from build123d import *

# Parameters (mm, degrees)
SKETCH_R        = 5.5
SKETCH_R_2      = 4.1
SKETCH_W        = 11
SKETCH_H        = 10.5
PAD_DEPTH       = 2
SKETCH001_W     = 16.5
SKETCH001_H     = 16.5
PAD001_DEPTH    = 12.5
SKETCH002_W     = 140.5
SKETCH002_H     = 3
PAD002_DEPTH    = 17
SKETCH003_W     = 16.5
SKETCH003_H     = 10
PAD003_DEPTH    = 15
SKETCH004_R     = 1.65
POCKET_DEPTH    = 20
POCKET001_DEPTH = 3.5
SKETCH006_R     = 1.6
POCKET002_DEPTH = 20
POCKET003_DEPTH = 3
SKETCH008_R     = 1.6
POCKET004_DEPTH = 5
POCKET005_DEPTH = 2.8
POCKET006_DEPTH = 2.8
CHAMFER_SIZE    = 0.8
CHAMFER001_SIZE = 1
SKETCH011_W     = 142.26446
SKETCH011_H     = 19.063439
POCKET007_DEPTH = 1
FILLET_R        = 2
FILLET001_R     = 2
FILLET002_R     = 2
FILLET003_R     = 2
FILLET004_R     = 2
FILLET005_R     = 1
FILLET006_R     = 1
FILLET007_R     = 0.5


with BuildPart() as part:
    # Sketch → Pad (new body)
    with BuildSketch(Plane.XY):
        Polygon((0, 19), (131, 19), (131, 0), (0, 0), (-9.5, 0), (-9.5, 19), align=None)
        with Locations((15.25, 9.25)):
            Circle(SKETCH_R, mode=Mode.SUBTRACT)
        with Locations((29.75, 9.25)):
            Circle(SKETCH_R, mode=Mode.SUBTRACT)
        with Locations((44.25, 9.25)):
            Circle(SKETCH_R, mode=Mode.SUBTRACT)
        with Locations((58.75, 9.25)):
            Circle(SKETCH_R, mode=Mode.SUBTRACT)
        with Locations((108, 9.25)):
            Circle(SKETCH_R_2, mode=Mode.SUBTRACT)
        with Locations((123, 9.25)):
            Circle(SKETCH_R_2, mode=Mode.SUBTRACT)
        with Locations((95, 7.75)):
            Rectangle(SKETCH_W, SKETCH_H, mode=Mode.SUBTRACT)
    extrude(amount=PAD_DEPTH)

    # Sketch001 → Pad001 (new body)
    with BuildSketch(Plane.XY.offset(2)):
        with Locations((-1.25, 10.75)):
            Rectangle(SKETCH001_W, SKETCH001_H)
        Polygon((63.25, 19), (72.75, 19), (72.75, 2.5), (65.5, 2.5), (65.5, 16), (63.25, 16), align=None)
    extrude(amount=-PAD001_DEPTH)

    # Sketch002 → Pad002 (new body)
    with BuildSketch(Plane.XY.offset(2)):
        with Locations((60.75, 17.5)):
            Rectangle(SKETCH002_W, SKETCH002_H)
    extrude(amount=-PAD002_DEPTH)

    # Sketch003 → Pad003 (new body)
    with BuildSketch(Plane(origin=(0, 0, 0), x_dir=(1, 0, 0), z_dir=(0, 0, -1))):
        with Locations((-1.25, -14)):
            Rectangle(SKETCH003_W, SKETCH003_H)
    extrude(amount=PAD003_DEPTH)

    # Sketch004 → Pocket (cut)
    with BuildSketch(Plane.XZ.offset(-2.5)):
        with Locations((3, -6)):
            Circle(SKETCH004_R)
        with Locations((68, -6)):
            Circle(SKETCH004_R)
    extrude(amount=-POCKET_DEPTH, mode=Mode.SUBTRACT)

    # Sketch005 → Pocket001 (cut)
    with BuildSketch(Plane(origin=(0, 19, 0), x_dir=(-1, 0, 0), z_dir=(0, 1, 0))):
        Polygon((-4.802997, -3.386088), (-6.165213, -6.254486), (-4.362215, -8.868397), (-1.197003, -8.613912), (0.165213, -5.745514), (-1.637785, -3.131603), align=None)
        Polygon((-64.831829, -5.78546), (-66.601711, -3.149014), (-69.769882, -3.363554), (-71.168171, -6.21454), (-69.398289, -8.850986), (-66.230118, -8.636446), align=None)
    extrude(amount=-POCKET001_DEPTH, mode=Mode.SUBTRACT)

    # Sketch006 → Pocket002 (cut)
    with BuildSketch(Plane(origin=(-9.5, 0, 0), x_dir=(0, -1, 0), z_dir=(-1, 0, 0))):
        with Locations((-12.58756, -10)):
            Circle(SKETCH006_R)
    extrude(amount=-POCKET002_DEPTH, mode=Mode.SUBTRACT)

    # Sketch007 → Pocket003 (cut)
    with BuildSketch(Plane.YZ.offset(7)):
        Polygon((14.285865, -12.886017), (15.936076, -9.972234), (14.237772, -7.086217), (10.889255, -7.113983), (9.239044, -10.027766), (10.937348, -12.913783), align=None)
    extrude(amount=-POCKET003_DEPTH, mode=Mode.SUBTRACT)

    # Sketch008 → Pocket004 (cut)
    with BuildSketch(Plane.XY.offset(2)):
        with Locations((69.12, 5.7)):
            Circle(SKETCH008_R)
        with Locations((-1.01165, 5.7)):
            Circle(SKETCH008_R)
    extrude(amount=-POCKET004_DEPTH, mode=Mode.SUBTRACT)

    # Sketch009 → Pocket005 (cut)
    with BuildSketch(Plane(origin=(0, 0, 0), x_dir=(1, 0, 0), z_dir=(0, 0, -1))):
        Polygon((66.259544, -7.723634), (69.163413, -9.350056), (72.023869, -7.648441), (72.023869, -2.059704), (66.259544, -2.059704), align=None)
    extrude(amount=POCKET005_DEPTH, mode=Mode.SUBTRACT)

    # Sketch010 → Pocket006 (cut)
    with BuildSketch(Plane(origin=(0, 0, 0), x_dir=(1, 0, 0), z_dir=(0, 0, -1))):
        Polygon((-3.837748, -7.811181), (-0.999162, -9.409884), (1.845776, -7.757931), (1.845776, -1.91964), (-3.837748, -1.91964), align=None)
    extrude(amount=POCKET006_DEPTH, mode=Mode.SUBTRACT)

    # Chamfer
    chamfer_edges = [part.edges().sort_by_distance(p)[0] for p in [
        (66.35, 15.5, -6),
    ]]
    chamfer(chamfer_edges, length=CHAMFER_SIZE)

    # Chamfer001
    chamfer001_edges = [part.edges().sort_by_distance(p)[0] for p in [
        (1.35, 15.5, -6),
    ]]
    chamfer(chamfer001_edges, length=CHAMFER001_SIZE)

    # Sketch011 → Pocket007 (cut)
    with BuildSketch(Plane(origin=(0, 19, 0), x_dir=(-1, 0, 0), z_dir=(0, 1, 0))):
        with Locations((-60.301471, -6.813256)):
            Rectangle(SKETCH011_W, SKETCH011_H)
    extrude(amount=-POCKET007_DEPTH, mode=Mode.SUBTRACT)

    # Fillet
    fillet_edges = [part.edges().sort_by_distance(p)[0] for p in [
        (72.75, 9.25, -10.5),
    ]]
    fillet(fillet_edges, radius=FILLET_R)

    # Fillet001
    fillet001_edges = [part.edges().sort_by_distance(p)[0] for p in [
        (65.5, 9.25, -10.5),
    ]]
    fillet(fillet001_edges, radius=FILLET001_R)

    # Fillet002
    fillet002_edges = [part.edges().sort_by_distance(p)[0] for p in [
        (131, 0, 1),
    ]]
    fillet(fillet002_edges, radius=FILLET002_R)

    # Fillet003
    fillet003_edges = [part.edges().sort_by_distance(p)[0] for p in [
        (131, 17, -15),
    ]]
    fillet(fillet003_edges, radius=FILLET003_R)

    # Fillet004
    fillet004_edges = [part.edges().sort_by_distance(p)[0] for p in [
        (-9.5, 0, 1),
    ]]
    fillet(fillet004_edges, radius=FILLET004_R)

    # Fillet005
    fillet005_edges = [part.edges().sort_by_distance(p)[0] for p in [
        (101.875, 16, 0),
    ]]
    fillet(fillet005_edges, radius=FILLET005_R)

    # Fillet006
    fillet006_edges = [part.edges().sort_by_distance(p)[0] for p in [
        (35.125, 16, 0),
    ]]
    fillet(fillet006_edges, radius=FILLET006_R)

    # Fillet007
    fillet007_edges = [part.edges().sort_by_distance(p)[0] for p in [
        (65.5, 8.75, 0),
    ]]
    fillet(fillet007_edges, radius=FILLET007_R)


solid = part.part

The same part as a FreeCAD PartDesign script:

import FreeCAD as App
import Part
import Sketcher
from FreeCAD import Vector


def edges_at(feature, points):
    """Names of the edges that pass closest to the given points."""
    edges = feature.Shape.Edges
    near = lambda p: min(range(len(edges)), key=lambda i: edges[i].distToShape(Part.Vertex(*p))[0])
    return sorted({f"Edge{near(p) + 1}" for p in points})


def add_polygon(sketch, points):
    """Adds a closed chain of lines whose ends are joined by coincident constraints."""
    first, n = sketch.GeometryCount, len(points)
    for a, b in zip(points, points[1:] + points[:1]):
        sketch.addGeometry(Part.LineSegment(App.Vector(*a, 0), App.Vector(*b, 0)), False)
    for i in range(n):
        sketch.addConstraint(Sketcher.Constraint("Coincident", first + i, 2, first + (i + 1) % n, 1))

doc = App.newDocument("Part")
body = doc.addObject("PartDesign::Body", "Body")

# Sketch on XY plane
sketch1 = body.newObject("Sketcher::SketchObject", "Sketch")
sketch1.AttachmentSupport = (doc.getObject("XY_Plane"), [""])
sketch1.MapMode = "FlatFace"
add_polygon(sketch1, [(131, 19), (-9.5, 19), (-9.5, 0), (131, 0)])  # lines 0-3
add_polygon(sketch1, [(89.5, 2.5), (89.5, 13), (100.5, 13), (100.5, 2.5)])  # lines 4-7
sketch1.addGeometry(Part.Circle(Vector(123, 9.2, 0), Vector(0, 0, 1), 4.1), False)  # 8
sketch1.addGeometry(Part.Circle(Vector(108, 9.2, 0), Vector(0, 0, 1), 4.1), False)  # 9
sketch1.addGeometry(Part.Circle(Vector(58.8, 9.2, 0), Vector(0, 0, 1), 5.5), False)  # 10
sketch1.addGeometry(Part.Circle(Vector(44.2, 9.2, 0), Vector(0, 0, 1), 5.5), False)  # 11
sketch1.addGeometry(Part.Circle(Vector(29.8, 9.2, 0), Vector(0, 0, 1), 5.5), False)  # 12
sketch1.addGeometry(Part.Circle(Vector(15.2, 9.2, 0), Vector(0, 0, 1), 5.5), False)  # 13
sketch1.addConstraint([
    Sketcher.Constraint("Horizontal", 0),
    Sketcher.Constraint("Vertical", 1),
    Sketcher.Constraint("Horizontal", 2),
    Sketcher.Constraint("Vertical", 3),
    Sketcher.Constraint("Vertical", 4),
    Sketcher.Constraint("Horizontal", 5),
    Sketcher.Constraint("Vertical", 6),
    Sketcher.Constraint("Horizontal", 7),
    Sketcher.Constraint("Equal", 8, 9),
    Sketcher.Constraint("Equal", 10, 11),
    Sketcher.Constraint("Equal", 11, 12),
    Sketcher.Constraint("Equal", 12, 13),
    Sketcher.Constraint("PointOnObject", 1, 2, -1),
    Sketcher.Constraint("Horizontal", 8, 3, 9, 3),
    Sketcher.Constraint("Horizontal", 9, 3, 10, 3),
    Sketcher.Constraint("Horizontal", 10, 3, 11, 3),
    Sketcher.Constraint("Horizontal", 11, 3, 12, 3),
    Sketcher.Constraint("Horizontal", 12, 3, 13, 3),
    Sketcher.Constraint("Diameter", 10, 11.0),
    Sketcher.Constraint("Diameter", 8, 8.2),
    Sketcher.Constraint("DistanceX", 5, 1, 5, 2, 11.0),
    Sketcher.Constraint("DistanceY", 1, 2, 1, 1, 19.0),
    Sketcher.Constraint("DistanceX", 0, 2, 0, 1, 140.5),
    Sketcher.Constraint("DistanceY", 4, 1, 4, 2, 10.5),
    Sketcher.Constraint("DistanceX", -1, 1, 8, 3, 123.0),
    Sketcher.Constraint("DistanceX", -1, 1, 9, 3, 108.0),
    Sketcher.Constraint("DistanceX", -1, 1, 2, 2, 131.0),
    Sketcher.Constraint("DistanceY", -1, 1, 4, 2, 13.0),
    Sketcher.Constraint("DistanceX", 12, 3, 10, 3, 29.0),
    Sketcher.Constraint("DistanceX", 13, 3, 11, 3, 29.0),
    Sketcher.Constraint("DistanceX", -1, 1, 4, 2, 89.5),
    Sketcher.Constraint("DistanceX", 11, 3, 10, 3, 14.5),
    Sketcher.Constraint("DistanceY", -1, 1, 8, 3, 9.25),
    Sketcher.Constraint("DistanceX", -1, 1, 10, 3, 58.75),
])
pad1 = body.newObject("PartDesign::Pad", "Pad")
pad1.Profile = sketch1
pad1.Length = 2

# Sketch on XY plane
sketch2 = body.newObject("Sketcher::SketchObject", "Sketch001")
sketch2.AttachmentSupport = (doc.getObject("XY_Plane"), [""])
sketch2.MapMode = "FlatFace"
sketch2.AttachmentOffset = App.Placement(Vector(0, 0, 2), App.Rotation())
add_polygon(sketch2, [(-9.5, 19), (-9.5, 2.5), (7, 2.5), (7, 19)])  # lines 0-3
add_polygon(sketch2, [(72.8, 19), (63.2, 19), (63.2, 16), (65.5, 16), (65.5, 2.5), (72.8, 2.5)])  # lines 4-9
sketch2.addConstraint([
    Sketcher.Constraint("Vertical", 0),
    Sketcher.Constraint("Horizontal", 1),
    Sketcher.Constraint("Vertical", 2),
    Sketcher.Constraint("Horizontal", 3),
    Sketcher.Constraint("Horizontal", 4),
    Sketcher.Constraint("Vertical", 5),
    Sketcher.Constraint("Horizontal", 6),
    Sketcher.Constraint("Vertical", 7),
    Sketcher.Constraint("Horizontal", 8),
    Sketcher.Constraint("Vertical", 9),
    Sketcher.Constraint("Horizontal", 3, 2, 4, 2),
    Sketcher.Constraint("Horizontal", 1, 2, 7, 2),
    Sketcher.Constraint("Equal", 3, 0),
    Sketcher.Constraint("DistanceY", 5, 2, 5, 1, 3.0),
    Sketcher.Constraint("DistanceX", 1, 1, 1, 2, 16.5),
    Sketcher.Constraint("DistanceX", 4, 2, 4, 1, 9.5),
    Sketcher.Constraint("DistanceX", -1, 1, 1, 2, 7.0),
    Sketcher.Constraint("DistanceY", -1, 1, 2, 2, 19.0),
    Sketcher.Constraint("DistanceX", 3, 2, 6, 2, 75.0),
    Sketcher.Constraint("DistanceX", 6, 1, 6, 2, 2.25),
])
pad2 = body.newObject("PartDesign::Pad", "Pad001")
pad2.Profile = sketch2
pad2.Length = 12.5
pad2.Reversed = True

# Sketch on XY plane
sketch3 = body.newObject("Sketcher::SketchObject", "Sketch002")
sketch3.AttachmentSupport = (doc.getObject("XY_Plane"), [""])
sketch3.MapMode = "FlatFace"
sketch3.AttachmentOffset = App.Placement(Vector(0, 0, 2), App.Rotation())
add_polygon(sketch3, [(-9.5, 19), (-9.5, 16), (131, 16), (131, 19)])  # lines 0-3
sketch3.addConstraint([
    Sketcher.Constraint("Vertical", 0),
    Sketcher.Constraint("Horizontal", 1),
    Sketcher.Constraint("Vertical", 2),
    Sketcher.Constraint("Horizontal", 3),
    Sketcher.Constraint("DistanceY", 0, 2, 0, 1, 3.0),
    Sketcher.Constraint("DistanceX", 1, 1, 1, 2, 140.5),
    Sketcher.Constraint("DistanceY", -1, 1, 0, 2, 16.0),
    Sketcher.Constraint("DistanceX", -1, 1, 1, 2, 131.0),
])
pad3 = body.newObject("PartDesign::Pad", "Pad002")
pad3.Profile = sketch3
pad3.Length = 17
pad3.Reversed = True

# Sketch on XY plane
sketch4 = body.newObject("Sketcher::SketchObject", "Sketch003")
sketch4.AttachmentSupport = (doc.getObject("XY_Plane"), [""])
sketch4.MapMode = "FlatFace"
add_polygon(sketch4, [(-10, 9), (-10, 19), (7, 19), (7, 9)])  # lines 0-3
sketch4.addConstraint([
    Sketcher.Constraint("Vertical", 0),
    Sketcher.Constraint("Horizontal", 1),
    Sketcher.Constraint("Vertical", 2),
    Sketcher.Constraint("Horizontal", 3),
    Sketcher.Constraint("DistanceY", 0, 1, 0, 2, 10.0),
    Sketcher.Constraint("DistanceX", 1, 1, 1, 2, 16.5),
    Sketcher.Constraint("DistanceY", -1, 1, 0, 2, 19.0),
    Sketcher.Constraint("DistanceX", -1, 1, 1, 2, 7.0),
])
pad4 = body.newObject("PartDesign::Pad", "Pad003")
pad4.Profile = sketch4
pad4.Length = 15
pad4.Reversed = True

# Sketch on XZ plane
sketch5 = body.newObject("Sketcher::SketchObject", "Sketch004")
sketch5.AttachmentSupport = (doc.getObject("XZ_Plane"), [""])
sketch5.MapMode = "FlatFace"
sketch5.AttachmentOffset = App.Placement(Vector(0, 0, -2.5), App.Rotation())
sketch5.addGeometry([
    Part.Circle(Vector(3, -6, 0), Vector(0, 0, 1), 1.6),
    Part.Circle(Vector(68, -6, 0), Vector(0, 0, 1), 1.6),
], False)
sketch5.addConstraint([
    Sketcher.Constraint("Equal", 0, 1),
    Sketcher.Constraint("Horizontal", 0, 3, 1, 3),
    Sketcher.Constraint("Diameter", 0, 3.3),
    Sketcher.Constraint("DistanceX", -1, 1, 0, 3, 3.0),
    Sketcher.Constraint("DistanceY", 0, 3, -1, 1, 6.0),
    Sketcher.Constraint("DistanceX", -1, 1, 1, 3, 68.0),
])
pocket1 = body.newObject("PartDesign::Pocket", "Pocket")
pocket1.Profile = sketch5
pocket1.Length = 20

# Sketch on XZ plane
sketch6 = body.newObject("Sketcher::SketchObject", "Sketch005")
sketch6.AttachmentSupport = (doc.getObject("XZ_Plane"), [""])
sketch6.MapMode = "FlatFace"
sketch6.AttachmentOffset = App.Placement(Vector(0, 0, -19), App.Rotation())
add_polygon(sketch6, [(4.8, -3.4), (6.2, -6.3), (4.4, -8.9), (1.2, -8.6), (-0.2, -5.7), (1.6, -3.1)])  # lines 0-5
add_polygon(sketch6, [(64.8, -5.8), (66.6, -3.1), (69.8, -3.4), (71.2, -6.2), (69.4, -8.9), (66.2, -8.6)])  # lines 6-11
sketch6.addConstraint([
    Sketcher.Constraint("Parallel", 0, 3),
    Sketcher.Constraint("Parallel", 1, 4),
    Sketcher.Constraint("Parallel", 2, 5),
    Sketcher.Constraint("Parallel", 6, 9),
    Sketcher.Constraint("Parallel", 7, 10),
    Sketcher.Constraint("Parallel", 8, 11),
    Sketcher.Constraint("Equal", 0, 1),
    Sketcher.Constraint("Equal", 1, 2),
    Sketcher.Constraint("Equal", 2, 3),
    Sketcher.Constraint("Equal", 5, 6),
    Sketcher.Constraint("Equal", 6, 7),
    Sketcher.Constraint("Equal", 7, 8),
    Sketcher.Constraint("Equal", 8, 9),
    Sketcher.Constraint("DistanceX", 3, 2, 4, 2, 1.802998),
    Sketcher.Constraint("DistanceY", 0, 2, 5, 2, 2.868398),
    Sketcher.Constraint("DistanceY", 9, 2, 0, 2, 2.5965),
    Sketcher.Constraint("DistanceY", 2, 2, -1, 1, 8.613912),
    Sketcher.Constraint("DistanceY", 5, 2, -1, 1, 3.386088),
    Sketcher.Constraint("DistanceX", -1, 1, 6, 2, 66.601711),
    Sketcher.Constraint("DistanceX", -1, 1, 7, 2, 69.769882),
    Sketcher.Constraint("DistanceX", -1, 1, 8, 2, 71.168171),
    Sketcher.Constraint("DistanceY", 8, 2, -1, 1, 6.21454),
    Sketcher.Constraint("DistanceX", -1, 1, 9, 2, 69.398289),
    Sketcher.Constraint("DistanceX", 2, 2, 6, 2, 65.404708),
])
pocket2 = body.newObject("PartDesign::Pocket", "Pocket001")
pocket2.Profile = sketch6
pocket2.Length = 3.5
pocket2.Reversed = True

# Sketch on YZ plane
sketch7 = body.newObject("Sketcher::SketchObject", "Sketch006")
sketch7.AttachmentSupport = (doc.getObject("YZ_Plane"), [""])
sketch7.MapMode = "FlatFace"
sketch7.AttachmentOffset = App.Placement(Vector(0, 0, -9.5), App.Rotation())
sketch7.addGeometry(Part.Circle(Vector(12.6, -10, 0), Vector(0, 0, 1), 1.6), False)
sketch7.addConstraint([
    Sketcher.Constraint("Diameter", 0, 3.2),
    Sketcher.Constraint("DistanceY", 0, 3, -1, 1, 10.0),
    Sketcher.Constraint("DistanceX", -1, 1, 0, 3, 12.58756),
])
pocket3 = body.newObject("PartDesign::Pocket", "Pocket002")
pocket3.Profile = sketch7
pocket3.Length = 20
pocket3.Reversed = True

# Sketch on YZ plane
sketch8 = body.newObject("Sketcher::SketchObject", "Sketch007")
sketch8.AttachmentSupport = (doc.getObject("YZ_Plane"), [""])
sketch8.MapMode = "FlatFace"
sketch8.AttachmentOffset = App.Placement(Vector(0, 0, 7), App.Rotation())
add_polygon(sketch8, [(14.3, -12.9), (15.9, -10), (14.2, -7.1), (10.9, -7.1), (9.2, -10), (10.9, -12.9)])  # lines 0-5
sketch8.addConstraint([
    Sketcher.Constraint("Parallel", 0, 3),
    Sketcher.Constraint("Parallel", 1, 4),
    Sketcher.Constraint("Parallel", 2, 5),
    Sketcher.Constraint("Equal", 0, 1),
    Sketcher.Constraint("Equal", 1, 2),
    Sketcher.Constraint("Equal", 2, 3),
    Sketcher.Constraint("DistanceY", 4, 2, 2, 2, 5.7998),
    Sketcher.Constraint("Distance", 0, 3.348631),
    Sketcher.Constraint("DistanceX", 2, 2, 0, 2, 5.046821),
    Sketcher.Constraint("DistanceY", 0, 2, 2, 2, 2.858251),
    Sketcher.Constraint("DistanceX", -1, 1, 0, 2, 15.936076),
    Sketcher.Constraint("DistanceY", 0, 2, -1, 1, 9.972234),
])
pocket4 = body.newObject("PartDesign::Pocket", "Pocket003")
pocket4.Profile = sketch8
pocket4.Length = 3

# Sketch on XY plane
sketch9 = body.newObject("Sketcher::SketchObject", "Sketch008")
sketch9.AttachmentSupport = (doc.getObject("XY_Plane"), [""])
sketch9.MapMode = "FlatFace"
sketch9.AttachmentOffset = App.Placement(Vector(0, 0, 2), App.Rotation())
sketch9.addGeometry([
    Part.Circle(Vector(69.1, 5.7, 0), Vector(0, 0, 1), 1.6),
    Part.Circle(Vector(-1, 5.7, 0), Vector(0, 0, 1), 1.6),
], False)
sketch9.addConstraint([
    Sketcher.Constraint("Equal", 0, 1),
    Sketcher.Constraint("Horizontal", 0, 3, 1, 3),
    Sketcher.Constraint("Diameter", 0, 3.2),
    Sketcher.Constraint("DistanceY", -1, 1, 0, 3, 5.7),
    Sketcher.Constraint("DistanceX", -1, 1, 0, 3, 69.12),
    Sketcher.Constraint("DistanceX", 1, 3, -1, 1, 1.01165),
])
pocket5 = body.newObject("PartDesign::Pocket", "Pocket004")
pocket5.Profile = sketch9
pocket5.Length = 5

# Sketch on XY plane
sketch10 = body.newObject("Sketcher::SketchObject", "Sketch009")
sketch10.AttachmentSupport = (doc.getObject("XY_Plane"), [""])
sketch10.MapMode = "FlatFace"
add_polygon(sketch10, [(66.3, 7.7), (69.2, 9.4), (72, 7.6), (72, 2.1), (66.3, 2.1)])  # lines 0-4
sketch10.addConstraint([
    Sketcher.Constraint("Vertical", 2),
    Sketcher.Constraint("Horizontal", 3),
    Sketcher.Constraint("Vertical", 4),
    Sketcher.Constraint("Equal", 0, 1),
    Sketcher.Constraint("DistanceY", 4, 1, 4, 2, 5.66393),
    Sketcher.Constraint("Distance", 0, 3.328318),
    Sketcher.Constraint("DistanceX", 3, 2, 3, 1, 5.764325),
    Sketcher.Constraint("DistanceY", 2, 2, 2, 1, 5.588737),
    Sketcher.Constraint("DistanceX", -1, 1, 1, 2, 72.023869),
    Sketcher.Constraint("DistanceY", -1, 1, 1, 2, 7.648441),
])
pocket6 = body.newObject("PartDesign::Pocket", "Pocket005")
pocket6.Profile = sketch10
pocket6.Length = 2.8

# Sketch on XY plane
sketch11 = body.newObject("Sketcher::SketchObject", "Sketch010")
sketch11.AttachmentSupport = (doc.getObject("XY_Plane"), [""])
sketch11.MapMode = "FlatFace"
add_polygon(sketch11, [(-3.8, 7.8), (-1, 9.4), (1.8, 7.8), (1.8, 1.9), (-3.8, 1.9)])  # lines 0-4
sketch11.addConstraint([
    Sketcher.Constraint("Vertical", 2),
    Sketcher.Constraint("Horizontal", 3),
    Sketcher.Constraint("Vertical", 4),
    Sketcher.Constraint("DistanceY", 2, 2, 2, 1, 5.838291),
    Sketcher.Constraint("DistanceY", 4, 1, 4, 2, 5.891541),
    Sketcher.Constraint("DistanceX", 3, 2, 3, 1, 5.683524),
    Sketcher.Constraint("DistanceX", 0, 2, -1, 1, 0.999162),
    Sketcher.Constraint("DistanceY", -1, 1, 1, 2, 7.757931),
    Sketcher.Constraint("DistanceX", 0, 2, 1, 2, 2.844938),
    Sketcher.Constraint("Distance", 0, 3.257825),
])
pocket7 = body.newObject("PartDesign::Pocket", "Pocket006")
pocket7.Profile = sketch11
pocket7.Length = 2.8
doc.recompute()

chamfer = body.newObject("PartDesign::Chamfer", "Chamfer")
chamfer.Base = (pocket7, edges_at(pocket7, [(66.35, 15.5, -6)]))
chamfer.Size = 0.8
doc.recompute()

chamfer2 = body.newObject("PartDesign::Chamfer", "Chamfer001")
chamfer2.Base = (chamfer, edges_at(chamfer, [(1.35, 15.5, -6)]))
chamfer2.Size = 1

# Sketch on XZ plane
sketch12 = body.newObject("Sketcher::SketchObject", "Sketch011")
sketch12.AttachmentSupport = (doc.getObject("XZ_Plane"), [""])
sketch12.MapMode = "FlatFace"
sketch12.AttachmentOffset = App.Placement(Vector(0, 0, -19), App.Rotation())
add_polygon(sketch12, [(131, 3), (131, -16), (-11, -16), (-11, 3)])  # lines 0-3
sketch12.addConstraint([
    Sketcher.Constraint("Vertical", 0),
    Sketcher.Constraint("Horizontal", 1),
    Sketcher.Constraint("Vertical", 2),
    Sketcher.Constraint("Horizontal", 3),
    Sketcher.Constraint("DistanceX", 1, 2, 1, 1, 142.26446),
    Sketcher.Constraint("DistanceY", 0, 2, 0, 1, 19.063439),
    Sketcher.Constraint("DistanceX", -1, 1, 0, 2, 131.433701),
    Sketcher.Constraint("DistanceY", 0, 2, -1, 1, 16.344976),
])
pocket8 = body.newObject("PartDesign::Pocket", "Pocket007")
pocket8.Profile = sketch12
pocket8.Length = 1
pocket8.Reversed = True
doc.recompute()

fillet = body.newObject("PartDesign::Fillet", "Fillet")
fillet.Base = (pocket8, edges_at(pocket8, [(72.75, 9.25, -10.5)]))
fillet.Radius = 2
doc.recompute()

fillet2 = body.newObject("PartDesign::Fillet", "Fillet001")
fillet2.Base = (fillet, edges_at(fillet, [(65.5, 9.25, -10.5)]))
fillet2.Radius = 2
doc.recompute()

fillet3 = body.newObject("PartDesign::Fillet", "Fillet002")
fillet3.Base = (fillet2, edges_at(fillet2, [(131, 0, 1)]))
fillet3.Radius = 2
doc.recompute()

fillet4 = body.newObject("PartDesign::Fillet", "Fillet003")
fillet4.Base = (fillet3, edges_at(fillet3, [(131, 17, -15)]))
fillet4.Radius = 2
doc.recompute()

fillet5 = body.newObject("PartDesign::Fillet", "Fillet004")
fillet5.Base = (fillet4, edges_at(fillet4, [(-9.5, 0, 1)]))
fillet5.Radius = 2
doc.recompute()

fillet6 = body.newObject("PartDesign::Fillet", "Fillet005")
fillet6.Base = (fillet5, edges_at(fillet5, [(101.875, 16, 0)]))
fillet6.Radius = 1
doc.recompute()

fillet7 = body.newObject("PartDesign::Fillet", "Fillet006")
fillet7.Base = (fillet6, edges_at(fillet6, [(36.25, 16, 0)]))
fillet7.Radius = 1
doc.recompute()

fillet8 = body.newObject("PartDesign::Fillet", "Fillet007")
fillet8.Base = (fillet7, edges_at(fillet7, [(65.5, 8.75, 0)]))
fillet8.Radius = 0.5

doc.recompute()
